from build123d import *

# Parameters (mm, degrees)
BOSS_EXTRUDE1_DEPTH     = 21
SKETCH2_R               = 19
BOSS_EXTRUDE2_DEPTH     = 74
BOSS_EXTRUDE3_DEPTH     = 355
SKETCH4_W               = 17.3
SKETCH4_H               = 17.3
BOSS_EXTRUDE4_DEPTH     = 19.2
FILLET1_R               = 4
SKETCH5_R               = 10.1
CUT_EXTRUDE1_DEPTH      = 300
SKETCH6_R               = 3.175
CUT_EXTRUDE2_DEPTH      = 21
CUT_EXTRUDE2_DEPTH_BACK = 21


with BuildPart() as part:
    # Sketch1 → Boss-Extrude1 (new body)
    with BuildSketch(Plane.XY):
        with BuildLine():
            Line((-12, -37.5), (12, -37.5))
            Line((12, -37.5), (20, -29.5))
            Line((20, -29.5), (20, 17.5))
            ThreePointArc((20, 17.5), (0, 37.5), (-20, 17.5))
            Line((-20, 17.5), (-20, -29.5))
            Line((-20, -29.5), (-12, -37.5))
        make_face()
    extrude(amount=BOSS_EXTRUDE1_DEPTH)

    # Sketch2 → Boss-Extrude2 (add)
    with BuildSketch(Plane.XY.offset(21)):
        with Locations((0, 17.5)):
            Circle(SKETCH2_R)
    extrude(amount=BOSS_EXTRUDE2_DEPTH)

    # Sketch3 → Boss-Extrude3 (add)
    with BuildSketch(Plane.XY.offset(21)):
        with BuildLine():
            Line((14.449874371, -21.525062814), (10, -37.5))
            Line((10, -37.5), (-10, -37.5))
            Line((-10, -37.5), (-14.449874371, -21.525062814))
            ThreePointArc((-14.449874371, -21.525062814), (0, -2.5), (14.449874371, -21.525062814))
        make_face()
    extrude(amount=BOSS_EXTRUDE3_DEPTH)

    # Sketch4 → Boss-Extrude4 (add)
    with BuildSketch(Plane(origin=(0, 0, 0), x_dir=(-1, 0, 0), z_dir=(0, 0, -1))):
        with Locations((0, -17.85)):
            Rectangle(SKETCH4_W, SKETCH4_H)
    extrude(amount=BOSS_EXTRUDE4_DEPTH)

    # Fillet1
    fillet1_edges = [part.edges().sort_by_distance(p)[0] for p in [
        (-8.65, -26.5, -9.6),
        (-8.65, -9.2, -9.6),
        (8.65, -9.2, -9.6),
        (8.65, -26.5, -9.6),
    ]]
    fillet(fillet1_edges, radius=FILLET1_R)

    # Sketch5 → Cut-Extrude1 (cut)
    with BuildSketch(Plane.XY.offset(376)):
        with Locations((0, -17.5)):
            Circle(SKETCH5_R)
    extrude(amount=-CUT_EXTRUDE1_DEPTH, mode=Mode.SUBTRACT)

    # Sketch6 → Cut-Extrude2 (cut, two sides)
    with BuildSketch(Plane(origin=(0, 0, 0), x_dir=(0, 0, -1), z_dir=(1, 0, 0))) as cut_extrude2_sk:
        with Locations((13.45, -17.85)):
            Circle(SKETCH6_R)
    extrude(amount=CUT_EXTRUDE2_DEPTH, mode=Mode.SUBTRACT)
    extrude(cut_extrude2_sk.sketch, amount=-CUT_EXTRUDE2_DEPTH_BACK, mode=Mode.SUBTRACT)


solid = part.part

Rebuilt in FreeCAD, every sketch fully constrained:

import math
import FreeCAD as App
import Part
import Sketcher

V = App.Vector
Q = App.Units.Quantity


def edges_at(feature, points):
    """Names of the edges that pass closest to the given points."""
    edges = feature.Shape.Edges
    near = lambda p: min(range(len(edges)), key=lambda i: edges[i].distToShape(Part.Vertex(*p))[0])
    return sorted({f"Edge{near(p) + 1}" for p in points})

doc = App.newDocument("Part")
params = doc.addObject("Spreadsheet::Sheet", "Params")
for row, (alias, value) in enumerate([
    ("sketch1_radius", "20 mm"),
    ("sketch1_width", "24 mm"),
    ("sketch1_height", "47 mm"),
    ("pad1_length", "21 mm"),
    ("sketch2_diameter", "38 mm"),
    ("pad2_length", "74 mm"),
    ("sketch3_radius", "15 mm"),
    ("sketch3_width", "20 mm"),
    ("pad3_length", "355 mm"),
    ("sketch4_width", "17.3 mm"),
    ("pad4_length", "19.2 mm"),
    ("fillet_radius", "4 mm"),
    ("sketch5_diameter", "20.2 mm"),
    ("pocket1_length", "300 mm"),
    ("sketch6_diameter", "6.35 mm"),
], start=1):
    params.set(f"A{row}", alias)
    params.set(f"B{row}", "=" + value)
    params.setAlias(f"B{row}", alias)

body = doc.addObject("PartDesign::Body", "Body")

sketch1 = body.newObject("Sketcher::SketchObject", "Sketch")
sketch1.AttachmentSupport = (doc.getObject("XY_Plane"), [""])
sketch1.MapMode = "FlatFace"
sketch1.addGeometry([
    Part.LineSegment(V(-12, -38, 0), V(12, -38, 0)),
    Part.LineSegment(V(12, -38, 0), V(20, -30, 0)),
    Part.LineSegment(V(20, -30, 0), V(20, 18, 0)),
    Part.ArcOfCircle(Part.Circle(V(0, 18, 0), V(0, 0, 1), 20), math.radians(0), math.radians(180)),
    Part.LineSegment(V(-20, 18, 0), V(-20, -30, 0)),
    Part.LineSegment(V(-20, -30, 0), V(-12, -38, 0)),
], False)
sketch1.addConstraint([
    Sketcher.Constraint("Coincident", 0, 2, 1, 1),
    Sketcher.Constraint("Coincident", 1, 2, 2, 1),
    Sketcher.Constraint("Tangent", 2, 2, 3, 1),
    Sketcher.Constraint("Tangent", 3, 2, 4, 1),
    Sketcher.Constraint("Coincident", 4, 2, 5, 1),
    Sketcher.Constraint("Coincident", 5, 2, 0, 1),
    Sketcher.Constraint("Horizontal", 0),
    Sketcher.Constraint("Vertical", 2),
    Sketcher.Constraint("Vertical", 4),
    Sketcher.Constraint("Symmetric", 1, 2, 4, 2, -2),
    Sketcher.Constraint("Perpendicular", 1, 5),
    Sketcher.Constraint("Equal", 1, 5),
    Sketcher.Constraint("Radius", 3, Q("20 mm")),
    Sketcher.Constraint("DistanceX", 0, 1, 0, 2, Q("24 mm")),
    Sketcher.Constraint("DistanceY", 2, 1, 2, 2, Q("47 mm")),
    Sketcher.Constraint("DistanceY", -1, 1, 3, 3, Q("17.5 mm")),
])
sketch1.setExpression("Constraints[12]", "Params.sketch1_radius")
sketch1.setExpression("Constraints[13]", "Params.sketch1_width")
sketch1.setExpression("Constraints[14]", "Params.sketch1_height")
pad1 = body.newObject("PartDesign::Pad", "Pad")
pad1.Profile = sketch1
pad1.setExpression("Length", "Params.pad1_length")

sketch2 = body.newObject("Sketcher::SketchObject", "Sketch001")
sketch2.AttachmentSupport = (doc.getObject("XY_Plane"), [""])
sketch2.MapMode = "FlatFace"
sketch2.AttachmentOffset = App.Placement(V(0, 0, 21), App.Rotation())
sketch2.addGeometry(Part.Circle(V(0, 18, 0), V(0, 0, 1), 19), False)
sketch2.addConstraint([
    Sketcher.Constraint("PointOnObject", 0, 3, -2),
    Sketcher.Constraint("Diameter", 0, Q("38 mm")),
    Sketcher.Constraint("DistanceY", -1, 1, 0, 3, Q("17.5 mm")),
])
sketch2.setExpression("Constraints[1]", "Params.sketch2_diameter")
pad2 = body.newObject("PartDesign::Pad", "Pad001")
pad2.Profile = sketch2
pad2.setExpression("Length", "Params.pad2_length")

sketch3 = body.newObject("Sketcher::SketchObject", "Sketch002")
sketch3.AttachmentSupport = (doc.getObject("XY_Plane"), [""])
sketch3.MapMode = "FlatFace"
sketch3.AttachmentOffset = App.Placement(V(0, 0, 21), App.Rotation())
sketch3.addGeometry([
    Part.LineSegment(V(10, -38, 0), V(14, -22, 0)),
    Part.ArcOfCircle(Part.Circle(V(0, -18, 0), V(0, 0, 1), 15), math.radians(-16), math.radians(196)),
    Part.LineSegment(V(-14, -22, 0), V(-10, -38, 0)),
    Part.LineSegment(V(-10, -38, 0), V(10, -38, 0)),
], False)
sketch3.addConstraint([
    Sketcher.Constraint("Tangent", 0, 2, 1, 1),
    Sketcher.Constraint("Tangent", 1, 2, 2, 1),
    Sketcher.Constraint("Coincident", 2, 2, 3, 1),
    Sketcher.Constraint("Coincident", 3, 2, 0, 1),
    Sketcher.Constraint("Horizontal", 3),
    Sketcher.Constraint("Symmetric", 0, 2, 1, 2, -2),
    Sketcher.Constraint("Radius", 1, Q("15 mm")),
    Sketcher.Constraint("DistanceX", 3, 1, 3, 2, Q("20 mm")),
    Sketcher.Constraint("DistanceY", 2, 2, 1, 3, Q("20 mm")),
    Sketcher.Constraint("DistanceY", 1, 3, -1, 1, Q("17.5 mm")),
])
sketch3.setExpression("Constraints[6]", "Params.sketch3_radius")
sketch3.setExpression("Constraints[7]", "Params.sketch3_width")
pad3 = body.newObject("PartDesign::Pad", "Pad002")
pad3.Profile = sketch3
pad3.setExpression("Length", "Params.pad3_length")

sketch4 = body.newObject("Sketcher::SketchObject", "Sketch003")
sketch4.AttachmentSupport = (doc.getObject("XY_Plane"), [""])
sketch4.MapMode = "FlatFace"
sketch4.addGeometry([
    Part.LineSegment(V(9, -9, 0), V(9, -26, 0)),
    Part.LineSegment(V(9, -26, 0), V(-9, -26, 0)),
    Part.LineSegment(V(-9, -26, 0), V(-9, -9, 0)),
    Part.LineSegment(V(-9, -9, 0), V(9, -9, 0)),
], False)
sketch4.addConstraint([
    Sketcher.Constraint("Coincident", 0, 2, 1, 1),
    Sketcher.Constraint("Coincident", 1, 2, 2, 1),
    Sketcher.Constraint("Coincident", 2, 2, 3, 1),
    Sketcher.Constraint("Coincident", 3, 2, 0, 1),
    Sketcher.Constraint("Vertical", 0),
    Sketcher.Constraint("Horizontal", 1),
    Sketcher.Constraint("Vertical", 2),
    Sketcher.Constraint("Horizontal", 3),
    Sketcher.Constraint("Equal", 3, 0),
    Sketcher.Constraint("DistanceX", 1, 2, 1, 1, Q("17.3 mm")),
    Sketcher.Constraint("DistanceY", 0, 2, -1, 1, Q("26.5 mm")),
    Sketcher.Constraint("DistanceX", -1, 1, 0, 2, Q("8.65 mm")),
])
sketch4.setExpression("Constraints[9]", "Params.sketch4_width")
pad4 = body.newObject("PartDesign::Pad", "Pad003")
pad4.Profile = sketch4
pad4.setExpression("Length", "Params.pad4_length")
pad4.Reversed = True
doc.recompute()

fillet = body.newObject("PartDesign::Fillet", "Fillet")
fillet.Base = (pad4, edges_at(pad4, [
    (-8.65, -26.5, -9.6),
    (-8.65, -9.2, -9.6),
    (8.65, -9.2, -9.6),
    (8.65, -26.5, -9.6),
]))
fillet.setExpression("Radius", "Params.fillet_radius")

sketch5 = body.newObject("Sketcher::SketchObject", "Sketch004")
sketch5.AttachmentSupport = (doc.getObject("XY_Plane"), [""])
sketch5.MapMode = "FlatFace"
sketch5.AttachmentOffset = App.Placement(V(0, 0, 376), App.Rotation())
sketch5.addGeometry(Part.Circle(V(0, -18, 0), V(0, 0, 1), 10), False)
sketch5.addConstraint([
    Sketcher.Constraint("PointOnObject", 0, 3, -2),
    Sketcher.Constraint("Diameter", 0, Q("20.2 mm")),
    Sketcher.Constraint("DistanceY", 0, 3, -1, 1, Q("17.5 mm")),
])
sketch5.setExpression("Constraints[1]", "Params.sketch5_diameter")
pocket1 = body.newObject("PartDesign::Pocket", "Pocket")
pocket1.Profile = sketch5
pocket1.setExpression("Length", "Params.pocket1_length")

sketch6 = body.newObject("Sketcher::SketchObject", "Sketch005")
sketch6.AttachmentSupport = (doc.getObject("YZ_Plane"), [""])
sketch6.MapMode = "FlatFace"
sketch6.addGeometry(Part.Circle(V(-17.9, -13.4, 0), V(0, 0, 1), 3.2), False)
sketch6.addConstraint([
    Sketcher.Constraint("Diameter", 0, Q("6.35 mm")),
    Sketcher.Constraint("DistanceX", 0, 3, -1, 1, Q("17.85 mm")),
    Sketcher.Constraint("DistanceY", 0, 3, -1, 1, Q("13.45 mm")),
])
sketch6.setExpression("Constraints[0]", "Params.sketch6_diameter")
pocket2 = body.newObject("PartDesign::Pocket", "Pocket001")
pocket2.Profile = sketch6
pocket2.Type = "ThroughAll"
pocket2.Midplane = True

doc.recompute()
